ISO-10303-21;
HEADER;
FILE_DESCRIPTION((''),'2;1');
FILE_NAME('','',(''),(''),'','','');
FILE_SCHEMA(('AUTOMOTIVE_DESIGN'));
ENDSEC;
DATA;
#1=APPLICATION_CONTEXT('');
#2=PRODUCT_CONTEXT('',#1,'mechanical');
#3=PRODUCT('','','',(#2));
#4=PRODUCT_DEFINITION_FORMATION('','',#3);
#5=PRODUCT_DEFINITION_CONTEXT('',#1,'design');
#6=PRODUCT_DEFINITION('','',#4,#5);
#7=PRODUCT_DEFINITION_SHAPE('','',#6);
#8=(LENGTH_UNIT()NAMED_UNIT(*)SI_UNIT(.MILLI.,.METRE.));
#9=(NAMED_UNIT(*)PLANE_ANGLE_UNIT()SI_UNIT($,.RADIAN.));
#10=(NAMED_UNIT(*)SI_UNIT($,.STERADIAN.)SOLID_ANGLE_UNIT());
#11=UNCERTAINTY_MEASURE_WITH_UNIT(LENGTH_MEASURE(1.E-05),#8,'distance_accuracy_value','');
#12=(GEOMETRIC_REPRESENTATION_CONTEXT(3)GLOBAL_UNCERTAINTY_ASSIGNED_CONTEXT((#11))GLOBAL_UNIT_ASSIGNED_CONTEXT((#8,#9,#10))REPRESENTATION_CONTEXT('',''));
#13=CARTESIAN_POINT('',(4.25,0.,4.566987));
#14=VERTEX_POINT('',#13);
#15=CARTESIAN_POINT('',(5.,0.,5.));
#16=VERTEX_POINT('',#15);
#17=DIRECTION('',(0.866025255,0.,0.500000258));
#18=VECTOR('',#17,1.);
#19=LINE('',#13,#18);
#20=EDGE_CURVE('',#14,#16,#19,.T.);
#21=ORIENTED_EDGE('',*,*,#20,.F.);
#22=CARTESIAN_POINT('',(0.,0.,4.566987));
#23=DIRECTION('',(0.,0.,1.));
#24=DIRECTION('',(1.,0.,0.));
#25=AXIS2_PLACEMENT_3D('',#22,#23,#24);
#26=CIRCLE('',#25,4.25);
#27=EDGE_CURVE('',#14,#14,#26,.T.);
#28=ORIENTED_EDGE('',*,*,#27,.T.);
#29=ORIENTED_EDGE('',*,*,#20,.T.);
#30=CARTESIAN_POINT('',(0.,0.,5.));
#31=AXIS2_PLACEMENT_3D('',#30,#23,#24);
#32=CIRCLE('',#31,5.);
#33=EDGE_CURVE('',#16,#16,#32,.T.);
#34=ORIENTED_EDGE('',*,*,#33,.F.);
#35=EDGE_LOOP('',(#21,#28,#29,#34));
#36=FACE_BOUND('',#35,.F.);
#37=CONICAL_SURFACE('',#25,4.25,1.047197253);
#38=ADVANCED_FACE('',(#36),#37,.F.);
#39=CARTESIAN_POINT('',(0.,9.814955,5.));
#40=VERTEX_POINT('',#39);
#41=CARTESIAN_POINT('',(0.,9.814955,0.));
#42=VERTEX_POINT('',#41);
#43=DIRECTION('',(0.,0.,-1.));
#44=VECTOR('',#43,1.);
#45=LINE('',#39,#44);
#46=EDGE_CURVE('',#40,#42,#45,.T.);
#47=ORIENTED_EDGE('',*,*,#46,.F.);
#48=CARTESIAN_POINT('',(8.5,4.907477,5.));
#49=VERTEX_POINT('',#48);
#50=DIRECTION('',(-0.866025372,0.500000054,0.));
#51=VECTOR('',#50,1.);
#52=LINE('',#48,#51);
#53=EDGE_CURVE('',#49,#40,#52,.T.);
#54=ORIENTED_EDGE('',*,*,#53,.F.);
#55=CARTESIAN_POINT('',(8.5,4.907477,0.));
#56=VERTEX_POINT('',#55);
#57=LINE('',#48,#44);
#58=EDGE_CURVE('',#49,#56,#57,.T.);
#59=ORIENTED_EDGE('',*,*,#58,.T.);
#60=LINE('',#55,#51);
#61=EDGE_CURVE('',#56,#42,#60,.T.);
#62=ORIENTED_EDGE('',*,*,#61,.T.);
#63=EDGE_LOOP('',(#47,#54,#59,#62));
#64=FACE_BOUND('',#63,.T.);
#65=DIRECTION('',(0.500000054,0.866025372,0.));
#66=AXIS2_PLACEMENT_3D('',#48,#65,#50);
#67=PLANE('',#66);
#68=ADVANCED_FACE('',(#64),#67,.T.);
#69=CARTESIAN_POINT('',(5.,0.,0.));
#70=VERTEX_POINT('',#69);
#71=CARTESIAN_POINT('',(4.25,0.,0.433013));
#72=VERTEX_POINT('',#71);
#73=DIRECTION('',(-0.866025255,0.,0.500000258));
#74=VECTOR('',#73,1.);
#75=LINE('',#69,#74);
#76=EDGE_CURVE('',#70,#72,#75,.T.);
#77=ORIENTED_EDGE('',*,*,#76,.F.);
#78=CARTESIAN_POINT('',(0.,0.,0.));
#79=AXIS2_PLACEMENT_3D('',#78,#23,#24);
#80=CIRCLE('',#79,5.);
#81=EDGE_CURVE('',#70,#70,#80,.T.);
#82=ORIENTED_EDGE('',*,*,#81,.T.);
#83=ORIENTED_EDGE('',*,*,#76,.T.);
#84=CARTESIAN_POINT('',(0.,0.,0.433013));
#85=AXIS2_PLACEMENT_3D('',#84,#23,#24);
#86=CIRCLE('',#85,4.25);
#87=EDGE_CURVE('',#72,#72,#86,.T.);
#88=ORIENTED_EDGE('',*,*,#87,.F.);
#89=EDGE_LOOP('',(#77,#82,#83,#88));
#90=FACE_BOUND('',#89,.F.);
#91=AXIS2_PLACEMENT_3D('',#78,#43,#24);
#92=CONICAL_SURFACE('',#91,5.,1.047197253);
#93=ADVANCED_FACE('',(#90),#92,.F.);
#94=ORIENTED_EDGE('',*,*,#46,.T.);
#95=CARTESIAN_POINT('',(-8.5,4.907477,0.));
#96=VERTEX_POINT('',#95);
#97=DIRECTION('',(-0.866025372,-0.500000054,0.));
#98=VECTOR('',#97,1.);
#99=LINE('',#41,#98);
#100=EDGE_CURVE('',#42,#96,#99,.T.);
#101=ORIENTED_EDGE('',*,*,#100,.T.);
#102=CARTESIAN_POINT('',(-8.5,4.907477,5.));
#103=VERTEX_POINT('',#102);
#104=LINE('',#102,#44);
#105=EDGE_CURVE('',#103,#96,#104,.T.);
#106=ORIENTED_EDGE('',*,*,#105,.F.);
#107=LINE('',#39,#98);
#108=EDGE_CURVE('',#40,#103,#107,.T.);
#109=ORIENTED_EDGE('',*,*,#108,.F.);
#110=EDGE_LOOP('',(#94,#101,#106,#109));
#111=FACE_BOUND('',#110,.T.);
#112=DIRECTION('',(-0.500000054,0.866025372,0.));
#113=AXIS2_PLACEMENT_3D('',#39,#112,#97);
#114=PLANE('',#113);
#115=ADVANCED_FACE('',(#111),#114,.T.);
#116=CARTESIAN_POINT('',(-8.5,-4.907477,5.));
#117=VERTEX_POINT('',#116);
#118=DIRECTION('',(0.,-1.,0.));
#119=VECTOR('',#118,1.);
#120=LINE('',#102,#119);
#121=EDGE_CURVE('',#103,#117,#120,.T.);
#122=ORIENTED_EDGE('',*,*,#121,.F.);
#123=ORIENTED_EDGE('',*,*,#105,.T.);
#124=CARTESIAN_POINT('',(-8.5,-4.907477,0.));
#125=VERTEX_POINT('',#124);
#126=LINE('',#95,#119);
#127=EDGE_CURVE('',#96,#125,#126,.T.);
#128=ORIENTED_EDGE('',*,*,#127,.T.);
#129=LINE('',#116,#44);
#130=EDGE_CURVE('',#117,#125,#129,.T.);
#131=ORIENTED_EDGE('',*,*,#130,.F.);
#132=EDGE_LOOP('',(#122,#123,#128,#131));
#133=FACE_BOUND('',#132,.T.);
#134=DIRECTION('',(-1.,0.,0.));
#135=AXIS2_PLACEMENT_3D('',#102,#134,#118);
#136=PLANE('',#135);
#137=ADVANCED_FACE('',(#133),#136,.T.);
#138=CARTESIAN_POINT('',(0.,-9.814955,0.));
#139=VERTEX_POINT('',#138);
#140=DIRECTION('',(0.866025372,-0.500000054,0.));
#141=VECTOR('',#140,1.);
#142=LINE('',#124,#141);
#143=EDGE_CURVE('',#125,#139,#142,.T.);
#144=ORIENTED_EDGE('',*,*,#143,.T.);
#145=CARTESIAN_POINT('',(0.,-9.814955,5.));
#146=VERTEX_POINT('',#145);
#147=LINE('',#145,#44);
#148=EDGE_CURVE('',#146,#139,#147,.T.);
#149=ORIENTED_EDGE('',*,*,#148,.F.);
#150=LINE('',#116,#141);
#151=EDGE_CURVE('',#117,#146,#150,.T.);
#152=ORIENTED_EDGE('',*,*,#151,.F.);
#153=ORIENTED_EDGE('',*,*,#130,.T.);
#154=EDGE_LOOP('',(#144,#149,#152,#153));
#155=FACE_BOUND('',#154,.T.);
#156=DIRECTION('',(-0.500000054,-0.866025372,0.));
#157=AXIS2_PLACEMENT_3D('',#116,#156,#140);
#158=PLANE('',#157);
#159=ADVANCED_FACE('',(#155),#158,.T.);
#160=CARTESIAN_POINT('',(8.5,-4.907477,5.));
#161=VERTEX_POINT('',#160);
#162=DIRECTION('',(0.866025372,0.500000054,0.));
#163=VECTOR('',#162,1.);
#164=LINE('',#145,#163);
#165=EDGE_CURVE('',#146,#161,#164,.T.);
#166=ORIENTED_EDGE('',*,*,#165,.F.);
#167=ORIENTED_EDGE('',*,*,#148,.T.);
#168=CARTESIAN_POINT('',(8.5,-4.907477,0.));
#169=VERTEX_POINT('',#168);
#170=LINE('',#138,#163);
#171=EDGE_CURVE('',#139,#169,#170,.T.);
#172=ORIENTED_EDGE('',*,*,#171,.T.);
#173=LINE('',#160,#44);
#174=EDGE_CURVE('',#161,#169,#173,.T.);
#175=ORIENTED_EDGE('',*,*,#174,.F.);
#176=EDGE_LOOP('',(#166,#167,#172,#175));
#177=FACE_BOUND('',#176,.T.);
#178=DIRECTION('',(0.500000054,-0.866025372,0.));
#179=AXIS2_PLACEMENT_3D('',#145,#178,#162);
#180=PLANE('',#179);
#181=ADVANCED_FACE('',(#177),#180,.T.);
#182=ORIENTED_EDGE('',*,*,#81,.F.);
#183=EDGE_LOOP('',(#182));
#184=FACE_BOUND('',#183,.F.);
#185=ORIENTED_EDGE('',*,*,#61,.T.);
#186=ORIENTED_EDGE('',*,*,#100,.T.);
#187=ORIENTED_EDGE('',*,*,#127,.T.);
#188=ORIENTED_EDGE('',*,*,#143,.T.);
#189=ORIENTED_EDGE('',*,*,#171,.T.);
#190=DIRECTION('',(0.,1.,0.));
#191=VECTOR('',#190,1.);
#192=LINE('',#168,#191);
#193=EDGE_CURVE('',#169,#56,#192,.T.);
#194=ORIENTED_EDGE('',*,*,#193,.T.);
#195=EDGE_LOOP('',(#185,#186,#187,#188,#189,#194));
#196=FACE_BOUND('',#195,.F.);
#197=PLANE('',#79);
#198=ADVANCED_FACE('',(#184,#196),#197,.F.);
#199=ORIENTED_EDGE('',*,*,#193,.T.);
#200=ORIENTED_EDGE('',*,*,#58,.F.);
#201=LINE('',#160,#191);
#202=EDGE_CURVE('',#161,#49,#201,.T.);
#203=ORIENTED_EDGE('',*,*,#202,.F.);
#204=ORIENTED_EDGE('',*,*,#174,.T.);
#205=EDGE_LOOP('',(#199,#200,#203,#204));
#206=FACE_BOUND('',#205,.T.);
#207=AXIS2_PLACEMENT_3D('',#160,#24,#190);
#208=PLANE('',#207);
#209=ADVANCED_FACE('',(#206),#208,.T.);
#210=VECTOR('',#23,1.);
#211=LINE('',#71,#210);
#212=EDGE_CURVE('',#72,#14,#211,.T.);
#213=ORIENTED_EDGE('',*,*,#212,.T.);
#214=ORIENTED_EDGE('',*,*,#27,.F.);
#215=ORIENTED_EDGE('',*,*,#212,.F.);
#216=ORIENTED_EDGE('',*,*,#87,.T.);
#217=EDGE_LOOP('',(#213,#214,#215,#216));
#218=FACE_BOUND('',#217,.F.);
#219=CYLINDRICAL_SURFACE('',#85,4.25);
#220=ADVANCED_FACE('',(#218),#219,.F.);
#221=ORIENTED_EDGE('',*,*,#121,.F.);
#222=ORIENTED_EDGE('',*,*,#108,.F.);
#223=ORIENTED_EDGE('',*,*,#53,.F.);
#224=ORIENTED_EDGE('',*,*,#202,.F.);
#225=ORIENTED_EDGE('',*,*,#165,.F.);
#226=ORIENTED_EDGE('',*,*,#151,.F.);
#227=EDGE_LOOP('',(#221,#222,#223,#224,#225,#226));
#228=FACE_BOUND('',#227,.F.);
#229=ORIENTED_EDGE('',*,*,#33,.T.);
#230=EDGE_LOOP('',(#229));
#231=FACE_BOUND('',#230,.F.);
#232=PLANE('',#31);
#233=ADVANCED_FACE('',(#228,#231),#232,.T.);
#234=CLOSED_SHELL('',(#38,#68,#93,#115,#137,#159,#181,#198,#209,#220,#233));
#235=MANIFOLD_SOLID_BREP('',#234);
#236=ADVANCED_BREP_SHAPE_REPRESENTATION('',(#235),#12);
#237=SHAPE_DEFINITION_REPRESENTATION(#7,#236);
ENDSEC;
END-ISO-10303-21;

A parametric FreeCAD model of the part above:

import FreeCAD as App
import Part
import Sketcher

V = App.Vector
Q = App.Units.Quantity

doc = App.newDocument("Part")
body = doc.addObject("PartDesign::Body", "Body")

# Sketch on XZ plane
sketch1 = body.newObject("Sketcher::SketchObject", "Sketch")
sketch1.AttachmentSupport = (doc.getObject("XZ_Plane"), [""])
sketch1.MapMode = "FlatFace"
sketch1.addGeometry([
    Part.LineSegment(V(4.2, 0.4, 0), V(5, 0, 0)),  # 0
    Part.LineSegment(V(5, 0, 0), V(10, 0, 0)),  # 1
    Part.LineSegment(V(10, 0, 0), V(10, 5, 0)),  # 2
    Part.LineSegment(V(10, 5, 0), V(5, 5, 0)),  # 3
    Part.LineSegment(V(5, 5, 0), V(4.2, 4.6, 0)),  # 4
    Part.LineSegment(V(4.2, 4.6, 0), V(4.2, 0.4, 0)),  # 5
], False)
sketch1.addConstraint([
    Sketcher.Constraint("Coincident", 0, 2, 1, 1),
    Sketcher.Constraint("Coincident", 1, 2, 2, 1),
    Sketcher.Constraint("Coincident", 2, 2, 3, 1),
    Sketcher.Constraint("Coincident", 3, 2, 4, 1),
    Sketcher.Constraint("Coincident", 4, 2, 5, 1),
    Sketcher.Constraint("Coincident", 5, 2, 0, 1),
    Sketcher.Constraint("Horizontal", 1),
    Sketcher.Constraint("Vertical", 2),
    Sketcher.Constraint("Horizontal", 3),
    Sketcher.Constraint("Vertical", 5),
    Sketcher.Constraint("PointOnObject", 0, 2, -1),
    Sketcher.Constraint("Vertical", 0, 2, 3, 2),
    Sketcher.Constraint("Equal", 3, 2),
    Sketcher.Constraint("Equal", 0, 4),
    Sketcher.Constraint("DistanceX", 1, 1, 1, 2, 5.0),
    Sketcher.Constraint("Angle", 0, Q("-30.000017 deg")),
    Sketcher.Constraint("DistanceX", -1, 1, 0, 2, 5.0),
    Sketcher.Constraint("DistanceX", -1, 1, 4, 2, 4.25),
])
revolution = body.newObject("PartDesign::Revolution", "Revolution")
revolution.Profile = sketch1
revolution.ReferenceAxis = (sketch1, ["V_Axis"])
revolution.Angle = 360

# Sketch on XY plane
sketch2 = body.newObject("Sketcher::SketchObject", "Sketch001")
sketch2.AttachmentSupport = (doc.getObject("XY_Plane"), [""])
sketch2.MapMode = "FlatFace"
sketch2.AttachmentOffset = App.Placement(V(0, 0, 5), App.Rotation())
sketch2.addGeometry([
    Part.Circle(V(0, 0, 0), V(0, 0, 1), 10),  # 0
    Part.LineSegment(V(8, 5, 0), V(8, -5, 0)),  # 1
    Part.LineSegment(V(8, -5, 0), V(0, -10, 0)),  # 2
    Part.LineSegment(V(0, -10, 0), V(-8, -5, 0)),  # 3
    Part.LineSegment(V(-8, -5, 0), V(-8, 5, 0)),  # 4
    Part.LineSegment(V(-8, 5, 0), V(0, 10, 0)),  # 5
    Part.LineSegment(V(0, 10, 0), V(8, 5, 0)),  # 6
], False)
sketch2.addConstraint([
    Sketcher.Constraint("Coincident", 1, 2, 2, 1),
    Sketcher.Constraint("Coincident", 2, 2, 3, 1),
    Sketcher.Constraint("Coincident", 3, 2, 4, 1),
    Sketcher.Constraint("Coincident", 4, 2, 5, 1),
    Sketcher.Constraint("Coincident", 5, 2, 6, 1),
    Sketcher.Constraint("Coincident", 6, 2, 1, 1),
    Sketcher.Constraint("Vertical", 1),
    Sketcher.Constraint("Vertical", 4),
    Sketcher.Constraint("Coincident", 0, 3, -1, 1),
    Sketcher.Constraint("Symmetric", 1, 2, 4, 2, -1, 1),
    Sketcher.Constraint("Symmetric", 2, 2, 5, 2, -1, 1),
    Sketcher.Constraint("PointOnObject", 2, 2, -2),
    Sketcher.Constraint("Parallel", 3, 6),
    Sketcher.Constraint("Horizontal", 1, 2, 3, 2),
    Sketcher.Constraint("Diameter", 0, 20.0),
    Sketcher.Constraint("Angle", 2, Q("-149.999996 deg")),
    Sketcher.Constraint("DistanceX", 3, 2, 1, 2, 17.0),
    Sketcher.Constraint("DistanceY", 1, 2, 1, 1, 9.814954),
])
pocket1 = body.newObject("PartDesign::Pocket", "Pocket")
pocket1.Profile = sketch2
pocket1.Length = 5

doc.recompute()
